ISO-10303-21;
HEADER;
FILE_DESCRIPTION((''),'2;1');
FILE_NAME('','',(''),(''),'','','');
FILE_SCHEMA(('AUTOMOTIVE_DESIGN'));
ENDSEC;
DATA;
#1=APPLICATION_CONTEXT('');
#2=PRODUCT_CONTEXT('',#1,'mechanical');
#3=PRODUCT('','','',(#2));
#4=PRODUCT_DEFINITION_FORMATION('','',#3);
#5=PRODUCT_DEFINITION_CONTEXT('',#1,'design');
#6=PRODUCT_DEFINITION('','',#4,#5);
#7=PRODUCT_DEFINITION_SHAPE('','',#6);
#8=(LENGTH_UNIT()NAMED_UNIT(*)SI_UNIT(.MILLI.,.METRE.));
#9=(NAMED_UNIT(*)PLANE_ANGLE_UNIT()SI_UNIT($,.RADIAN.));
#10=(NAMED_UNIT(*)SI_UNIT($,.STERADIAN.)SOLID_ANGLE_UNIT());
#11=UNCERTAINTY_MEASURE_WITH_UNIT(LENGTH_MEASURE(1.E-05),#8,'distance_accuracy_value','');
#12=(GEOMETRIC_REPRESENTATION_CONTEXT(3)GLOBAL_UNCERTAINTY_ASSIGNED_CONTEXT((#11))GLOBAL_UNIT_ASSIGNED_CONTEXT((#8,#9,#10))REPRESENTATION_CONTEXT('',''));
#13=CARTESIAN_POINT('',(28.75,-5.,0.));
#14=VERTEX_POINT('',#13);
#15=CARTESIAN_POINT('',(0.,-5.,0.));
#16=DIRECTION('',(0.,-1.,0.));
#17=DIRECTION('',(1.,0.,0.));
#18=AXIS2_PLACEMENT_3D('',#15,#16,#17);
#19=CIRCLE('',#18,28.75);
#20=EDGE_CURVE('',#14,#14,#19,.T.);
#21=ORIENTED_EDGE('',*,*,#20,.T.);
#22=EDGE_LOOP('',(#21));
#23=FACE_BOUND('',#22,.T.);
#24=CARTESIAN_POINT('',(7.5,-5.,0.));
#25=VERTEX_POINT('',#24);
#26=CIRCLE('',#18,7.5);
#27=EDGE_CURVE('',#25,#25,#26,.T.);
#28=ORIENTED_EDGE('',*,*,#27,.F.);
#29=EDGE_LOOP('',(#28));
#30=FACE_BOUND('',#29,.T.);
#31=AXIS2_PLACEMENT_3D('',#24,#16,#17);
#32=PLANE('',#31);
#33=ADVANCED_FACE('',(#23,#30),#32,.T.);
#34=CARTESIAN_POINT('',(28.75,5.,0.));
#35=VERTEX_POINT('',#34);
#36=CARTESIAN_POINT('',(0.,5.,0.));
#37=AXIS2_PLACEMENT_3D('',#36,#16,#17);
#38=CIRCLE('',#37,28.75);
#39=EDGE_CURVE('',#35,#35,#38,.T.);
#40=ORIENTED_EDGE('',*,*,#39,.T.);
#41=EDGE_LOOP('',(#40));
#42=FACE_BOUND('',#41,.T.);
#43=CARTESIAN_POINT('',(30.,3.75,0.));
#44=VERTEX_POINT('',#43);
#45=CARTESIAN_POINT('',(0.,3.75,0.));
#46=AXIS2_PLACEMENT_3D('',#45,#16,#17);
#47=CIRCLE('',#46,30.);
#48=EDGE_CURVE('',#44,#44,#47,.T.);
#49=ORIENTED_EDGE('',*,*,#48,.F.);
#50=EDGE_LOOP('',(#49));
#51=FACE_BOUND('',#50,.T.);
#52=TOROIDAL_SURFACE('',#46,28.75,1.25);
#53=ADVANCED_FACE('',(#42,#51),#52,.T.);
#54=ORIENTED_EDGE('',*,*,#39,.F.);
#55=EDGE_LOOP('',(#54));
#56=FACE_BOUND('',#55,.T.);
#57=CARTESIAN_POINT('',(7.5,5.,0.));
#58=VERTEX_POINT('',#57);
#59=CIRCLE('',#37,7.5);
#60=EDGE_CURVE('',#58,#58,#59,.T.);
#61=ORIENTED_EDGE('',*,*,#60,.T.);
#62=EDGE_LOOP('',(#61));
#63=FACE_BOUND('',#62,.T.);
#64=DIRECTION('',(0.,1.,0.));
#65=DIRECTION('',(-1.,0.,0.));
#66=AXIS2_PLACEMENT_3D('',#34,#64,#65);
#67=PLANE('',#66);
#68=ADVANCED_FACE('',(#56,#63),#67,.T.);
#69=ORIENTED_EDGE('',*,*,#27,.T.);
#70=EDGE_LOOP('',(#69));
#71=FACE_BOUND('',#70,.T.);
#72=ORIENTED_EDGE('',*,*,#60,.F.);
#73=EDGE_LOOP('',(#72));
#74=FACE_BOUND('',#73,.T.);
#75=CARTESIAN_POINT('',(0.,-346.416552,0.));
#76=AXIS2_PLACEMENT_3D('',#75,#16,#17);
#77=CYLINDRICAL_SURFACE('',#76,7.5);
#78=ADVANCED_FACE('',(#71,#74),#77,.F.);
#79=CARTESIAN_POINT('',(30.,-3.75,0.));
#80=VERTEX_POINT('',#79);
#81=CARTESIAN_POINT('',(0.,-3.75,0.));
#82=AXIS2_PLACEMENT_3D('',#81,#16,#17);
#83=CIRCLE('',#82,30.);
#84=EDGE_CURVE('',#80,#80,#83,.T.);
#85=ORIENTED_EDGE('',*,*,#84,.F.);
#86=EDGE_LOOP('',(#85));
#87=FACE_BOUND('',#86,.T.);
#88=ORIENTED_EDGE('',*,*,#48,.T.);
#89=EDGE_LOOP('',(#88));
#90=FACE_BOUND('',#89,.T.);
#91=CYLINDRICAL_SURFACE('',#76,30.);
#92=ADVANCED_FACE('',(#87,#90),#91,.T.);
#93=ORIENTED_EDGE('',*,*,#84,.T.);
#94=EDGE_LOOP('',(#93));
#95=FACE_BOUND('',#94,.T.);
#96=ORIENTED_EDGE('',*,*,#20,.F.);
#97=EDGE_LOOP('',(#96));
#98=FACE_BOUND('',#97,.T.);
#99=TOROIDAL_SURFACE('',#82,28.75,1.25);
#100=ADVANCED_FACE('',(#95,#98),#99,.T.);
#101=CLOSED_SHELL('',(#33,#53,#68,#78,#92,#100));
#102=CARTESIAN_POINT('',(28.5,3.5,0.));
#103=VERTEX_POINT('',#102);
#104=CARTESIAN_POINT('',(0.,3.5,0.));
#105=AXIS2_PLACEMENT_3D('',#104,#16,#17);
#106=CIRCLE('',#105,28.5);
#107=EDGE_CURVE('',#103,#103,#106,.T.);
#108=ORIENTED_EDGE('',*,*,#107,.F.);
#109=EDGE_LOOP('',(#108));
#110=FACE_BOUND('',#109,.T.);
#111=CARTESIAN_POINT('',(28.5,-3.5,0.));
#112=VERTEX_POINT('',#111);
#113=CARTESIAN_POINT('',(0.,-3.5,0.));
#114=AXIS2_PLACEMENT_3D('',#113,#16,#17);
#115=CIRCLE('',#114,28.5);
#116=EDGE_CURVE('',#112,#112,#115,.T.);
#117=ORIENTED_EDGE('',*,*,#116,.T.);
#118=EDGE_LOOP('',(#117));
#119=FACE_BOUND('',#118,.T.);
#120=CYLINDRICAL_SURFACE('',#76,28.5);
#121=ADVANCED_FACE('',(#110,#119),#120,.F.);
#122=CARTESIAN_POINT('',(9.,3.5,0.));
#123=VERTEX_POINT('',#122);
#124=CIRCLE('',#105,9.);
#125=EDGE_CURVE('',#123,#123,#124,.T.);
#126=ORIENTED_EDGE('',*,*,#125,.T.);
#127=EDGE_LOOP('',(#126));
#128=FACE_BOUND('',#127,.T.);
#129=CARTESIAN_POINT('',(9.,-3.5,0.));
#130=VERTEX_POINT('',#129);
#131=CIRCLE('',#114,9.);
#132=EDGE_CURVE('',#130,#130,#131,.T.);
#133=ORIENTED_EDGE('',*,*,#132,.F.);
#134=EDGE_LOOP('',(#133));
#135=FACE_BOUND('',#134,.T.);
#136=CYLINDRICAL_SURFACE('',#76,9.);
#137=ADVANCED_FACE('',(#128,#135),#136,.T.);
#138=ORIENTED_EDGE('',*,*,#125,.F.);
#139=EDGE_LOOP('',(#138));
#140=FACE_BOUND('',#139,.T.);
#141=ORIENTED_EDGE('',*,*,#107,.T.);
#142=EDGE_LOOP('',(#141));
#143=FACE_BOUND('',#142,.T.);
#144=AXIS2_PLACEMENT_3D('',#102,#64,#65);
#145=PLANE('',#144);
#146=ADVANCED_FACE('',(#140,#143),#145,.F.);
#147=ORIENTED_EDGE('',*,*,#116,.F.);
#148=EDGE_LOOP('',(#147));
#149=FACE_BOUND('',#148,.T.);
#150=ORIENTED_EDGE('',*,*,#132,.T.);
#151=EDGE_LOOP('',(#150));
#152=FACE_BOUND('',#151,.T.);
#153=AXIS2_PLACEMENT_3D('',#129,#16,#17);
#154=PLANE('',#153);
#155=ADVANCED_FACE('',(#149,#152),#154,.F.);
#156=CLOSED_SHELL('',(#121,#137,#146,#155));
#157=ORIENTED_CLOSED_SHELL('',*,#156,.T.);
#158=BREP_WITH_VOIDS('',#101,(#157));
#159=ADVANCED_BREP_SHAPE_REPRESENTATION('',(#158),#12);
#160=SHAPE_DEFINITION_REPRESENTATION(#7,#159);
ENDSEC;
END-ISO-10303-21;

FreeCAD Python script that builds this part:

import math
import FreeCAD as App
import Part
import Sketcher

doc = App.newDocument("Part")
body = doc.addObject("PartDesign::Body", "Body")

# Sketch on XY plane
sketch1 = doc.addObject("Sketcher::SketchObject", "Sketch")
body.addObject(sketch1)
sketch1.AttachmentSupport = (doc.XY_Plane, [""])
sketch1.MapMode = "FlatFace"
sketch1.addGeometry([
    Part.LineSegment(App.Vector(7.5, 5, 0), App.Vector(7.5, -5, 0)),  # 0
    Part.LineSegment(App.Vector(7.5, -5, 0), App.Vector(28.8, -5, 0)),  # 1
    Part.ArcOfCircle(Part.Circle(App.Vector(28.7, -3.7, 0), App.Vector(0, 0, 1), 1.3), math.radians(-90), math.radians(0)),  # 2
    Part.LineSegment(App.Vector(30, -3.8, 0), App.Vector(30, 3.8, 0)),  # 3
    Part.ArcOfCircle(Part.Circle(App.Vector(28.7, 3.7, 0), App.Vector(0, 0, 1), 1.3), math.radians(0), math.radians(90)),  # 4
    Part.LineSegment(App.Vector(28.8, 5, 0), App.Vector(7.5, 5, 0)),  # 5
    Part.LineSegment(App.Vector(28.5, -3.5, 0), App.Vector(9, -3.5, 0)),  # 6
    Part.LineSegment(App.Vector(9, -3.5, 0), App.Vector(9, 3.5, 0)),  # 7
    Part.LineSegment(App.Vector(9, 3.5, 0), App.Vector(28.5, 3.5, 0)),  # 8
    Part.LineSegment(App.Vector(28.5, 3.5, 0), App.Vector(28.5, -3.5, 0)),  # 9
], False)
sketch1.addConstraint([
    Sketcher.Constraint("Coincident", 0, 2, 1, 1),
    Sketcher.Constraint("Tangent", 1, 2, 2, 1),
    Sketcher.Constraint("Tangent", 2, 2, 3, 1),
    Sketcher.Constraint("Tangent", 3, 2, 4, 1),
    Sketcher.Constraint("Tangent", 4, 2, 5, 1),
    Sketcher.Constraint("Coincident", 5, 2, 0, 1),
    Sketcher.Constraint("Coincident", 6, 2, 7, 1),
    Sketcher.Constraint("Coincident", 7, 2, 8, 1),
    Sketcher.Constraint("Coincident", 8, 2, 9, 1),
    Sketcher.Constraint("Coincident", 9, 2, 6, 1),
    Sketcher.Constraint("Vertical", 0),
    Sketcher.Constraint("Horizontal", 1),
    Sketcher.Constraint("Vertical", 3),
    Sketcher.Constraint("Horizontal", 5),
    Sketcher.Constraint("Horizontal", 6),
    Sketcher.Constraint("Vertical", 7),
    Sketcher.Constraint("Horizontal", 8),
    Sketcher.Constraint("Vertical", 9),
    Sketcher.Constraint("Equal", 2, 4),
    Sketcher.Constraint("DistanceY", 0, 2, 0, 1, 10.0),
    Sketcher.Constraint("DistanceY", 7, 1, 7, 2, 7.0),
    Sketcher.Constraint("Radius", 2, 1.25),
    Sketcher.Constraint("DistanceX", 6, 2, 6, 1, 19.5),
    Sketcher.Constraint("DistanceY", 0, 2, -1, 1, 5.0),
    Sketcher.Constraint("DistanceX", -1, 1, 2, 2, 30.0),
    Sketcher.Constraint("DistanceX", -1, 1, 6, 2, 9.0),
    Sketcher.Constraint("DistanceX", 1, 1, 1, 2, 21.25),
    Sketcher.Constraint("DistanceY", 6, 2, -1, 1, 3.5),
])
revolution = doc.addObject("PartDesign::Revolution", "Revolution")
body.addObject(revolution)
revolution.Profile = sketch1
revolution.ReferenceAxis = (sketch1, ["V_Axis"])
revolution.Angle = 360

doc.recompute()
